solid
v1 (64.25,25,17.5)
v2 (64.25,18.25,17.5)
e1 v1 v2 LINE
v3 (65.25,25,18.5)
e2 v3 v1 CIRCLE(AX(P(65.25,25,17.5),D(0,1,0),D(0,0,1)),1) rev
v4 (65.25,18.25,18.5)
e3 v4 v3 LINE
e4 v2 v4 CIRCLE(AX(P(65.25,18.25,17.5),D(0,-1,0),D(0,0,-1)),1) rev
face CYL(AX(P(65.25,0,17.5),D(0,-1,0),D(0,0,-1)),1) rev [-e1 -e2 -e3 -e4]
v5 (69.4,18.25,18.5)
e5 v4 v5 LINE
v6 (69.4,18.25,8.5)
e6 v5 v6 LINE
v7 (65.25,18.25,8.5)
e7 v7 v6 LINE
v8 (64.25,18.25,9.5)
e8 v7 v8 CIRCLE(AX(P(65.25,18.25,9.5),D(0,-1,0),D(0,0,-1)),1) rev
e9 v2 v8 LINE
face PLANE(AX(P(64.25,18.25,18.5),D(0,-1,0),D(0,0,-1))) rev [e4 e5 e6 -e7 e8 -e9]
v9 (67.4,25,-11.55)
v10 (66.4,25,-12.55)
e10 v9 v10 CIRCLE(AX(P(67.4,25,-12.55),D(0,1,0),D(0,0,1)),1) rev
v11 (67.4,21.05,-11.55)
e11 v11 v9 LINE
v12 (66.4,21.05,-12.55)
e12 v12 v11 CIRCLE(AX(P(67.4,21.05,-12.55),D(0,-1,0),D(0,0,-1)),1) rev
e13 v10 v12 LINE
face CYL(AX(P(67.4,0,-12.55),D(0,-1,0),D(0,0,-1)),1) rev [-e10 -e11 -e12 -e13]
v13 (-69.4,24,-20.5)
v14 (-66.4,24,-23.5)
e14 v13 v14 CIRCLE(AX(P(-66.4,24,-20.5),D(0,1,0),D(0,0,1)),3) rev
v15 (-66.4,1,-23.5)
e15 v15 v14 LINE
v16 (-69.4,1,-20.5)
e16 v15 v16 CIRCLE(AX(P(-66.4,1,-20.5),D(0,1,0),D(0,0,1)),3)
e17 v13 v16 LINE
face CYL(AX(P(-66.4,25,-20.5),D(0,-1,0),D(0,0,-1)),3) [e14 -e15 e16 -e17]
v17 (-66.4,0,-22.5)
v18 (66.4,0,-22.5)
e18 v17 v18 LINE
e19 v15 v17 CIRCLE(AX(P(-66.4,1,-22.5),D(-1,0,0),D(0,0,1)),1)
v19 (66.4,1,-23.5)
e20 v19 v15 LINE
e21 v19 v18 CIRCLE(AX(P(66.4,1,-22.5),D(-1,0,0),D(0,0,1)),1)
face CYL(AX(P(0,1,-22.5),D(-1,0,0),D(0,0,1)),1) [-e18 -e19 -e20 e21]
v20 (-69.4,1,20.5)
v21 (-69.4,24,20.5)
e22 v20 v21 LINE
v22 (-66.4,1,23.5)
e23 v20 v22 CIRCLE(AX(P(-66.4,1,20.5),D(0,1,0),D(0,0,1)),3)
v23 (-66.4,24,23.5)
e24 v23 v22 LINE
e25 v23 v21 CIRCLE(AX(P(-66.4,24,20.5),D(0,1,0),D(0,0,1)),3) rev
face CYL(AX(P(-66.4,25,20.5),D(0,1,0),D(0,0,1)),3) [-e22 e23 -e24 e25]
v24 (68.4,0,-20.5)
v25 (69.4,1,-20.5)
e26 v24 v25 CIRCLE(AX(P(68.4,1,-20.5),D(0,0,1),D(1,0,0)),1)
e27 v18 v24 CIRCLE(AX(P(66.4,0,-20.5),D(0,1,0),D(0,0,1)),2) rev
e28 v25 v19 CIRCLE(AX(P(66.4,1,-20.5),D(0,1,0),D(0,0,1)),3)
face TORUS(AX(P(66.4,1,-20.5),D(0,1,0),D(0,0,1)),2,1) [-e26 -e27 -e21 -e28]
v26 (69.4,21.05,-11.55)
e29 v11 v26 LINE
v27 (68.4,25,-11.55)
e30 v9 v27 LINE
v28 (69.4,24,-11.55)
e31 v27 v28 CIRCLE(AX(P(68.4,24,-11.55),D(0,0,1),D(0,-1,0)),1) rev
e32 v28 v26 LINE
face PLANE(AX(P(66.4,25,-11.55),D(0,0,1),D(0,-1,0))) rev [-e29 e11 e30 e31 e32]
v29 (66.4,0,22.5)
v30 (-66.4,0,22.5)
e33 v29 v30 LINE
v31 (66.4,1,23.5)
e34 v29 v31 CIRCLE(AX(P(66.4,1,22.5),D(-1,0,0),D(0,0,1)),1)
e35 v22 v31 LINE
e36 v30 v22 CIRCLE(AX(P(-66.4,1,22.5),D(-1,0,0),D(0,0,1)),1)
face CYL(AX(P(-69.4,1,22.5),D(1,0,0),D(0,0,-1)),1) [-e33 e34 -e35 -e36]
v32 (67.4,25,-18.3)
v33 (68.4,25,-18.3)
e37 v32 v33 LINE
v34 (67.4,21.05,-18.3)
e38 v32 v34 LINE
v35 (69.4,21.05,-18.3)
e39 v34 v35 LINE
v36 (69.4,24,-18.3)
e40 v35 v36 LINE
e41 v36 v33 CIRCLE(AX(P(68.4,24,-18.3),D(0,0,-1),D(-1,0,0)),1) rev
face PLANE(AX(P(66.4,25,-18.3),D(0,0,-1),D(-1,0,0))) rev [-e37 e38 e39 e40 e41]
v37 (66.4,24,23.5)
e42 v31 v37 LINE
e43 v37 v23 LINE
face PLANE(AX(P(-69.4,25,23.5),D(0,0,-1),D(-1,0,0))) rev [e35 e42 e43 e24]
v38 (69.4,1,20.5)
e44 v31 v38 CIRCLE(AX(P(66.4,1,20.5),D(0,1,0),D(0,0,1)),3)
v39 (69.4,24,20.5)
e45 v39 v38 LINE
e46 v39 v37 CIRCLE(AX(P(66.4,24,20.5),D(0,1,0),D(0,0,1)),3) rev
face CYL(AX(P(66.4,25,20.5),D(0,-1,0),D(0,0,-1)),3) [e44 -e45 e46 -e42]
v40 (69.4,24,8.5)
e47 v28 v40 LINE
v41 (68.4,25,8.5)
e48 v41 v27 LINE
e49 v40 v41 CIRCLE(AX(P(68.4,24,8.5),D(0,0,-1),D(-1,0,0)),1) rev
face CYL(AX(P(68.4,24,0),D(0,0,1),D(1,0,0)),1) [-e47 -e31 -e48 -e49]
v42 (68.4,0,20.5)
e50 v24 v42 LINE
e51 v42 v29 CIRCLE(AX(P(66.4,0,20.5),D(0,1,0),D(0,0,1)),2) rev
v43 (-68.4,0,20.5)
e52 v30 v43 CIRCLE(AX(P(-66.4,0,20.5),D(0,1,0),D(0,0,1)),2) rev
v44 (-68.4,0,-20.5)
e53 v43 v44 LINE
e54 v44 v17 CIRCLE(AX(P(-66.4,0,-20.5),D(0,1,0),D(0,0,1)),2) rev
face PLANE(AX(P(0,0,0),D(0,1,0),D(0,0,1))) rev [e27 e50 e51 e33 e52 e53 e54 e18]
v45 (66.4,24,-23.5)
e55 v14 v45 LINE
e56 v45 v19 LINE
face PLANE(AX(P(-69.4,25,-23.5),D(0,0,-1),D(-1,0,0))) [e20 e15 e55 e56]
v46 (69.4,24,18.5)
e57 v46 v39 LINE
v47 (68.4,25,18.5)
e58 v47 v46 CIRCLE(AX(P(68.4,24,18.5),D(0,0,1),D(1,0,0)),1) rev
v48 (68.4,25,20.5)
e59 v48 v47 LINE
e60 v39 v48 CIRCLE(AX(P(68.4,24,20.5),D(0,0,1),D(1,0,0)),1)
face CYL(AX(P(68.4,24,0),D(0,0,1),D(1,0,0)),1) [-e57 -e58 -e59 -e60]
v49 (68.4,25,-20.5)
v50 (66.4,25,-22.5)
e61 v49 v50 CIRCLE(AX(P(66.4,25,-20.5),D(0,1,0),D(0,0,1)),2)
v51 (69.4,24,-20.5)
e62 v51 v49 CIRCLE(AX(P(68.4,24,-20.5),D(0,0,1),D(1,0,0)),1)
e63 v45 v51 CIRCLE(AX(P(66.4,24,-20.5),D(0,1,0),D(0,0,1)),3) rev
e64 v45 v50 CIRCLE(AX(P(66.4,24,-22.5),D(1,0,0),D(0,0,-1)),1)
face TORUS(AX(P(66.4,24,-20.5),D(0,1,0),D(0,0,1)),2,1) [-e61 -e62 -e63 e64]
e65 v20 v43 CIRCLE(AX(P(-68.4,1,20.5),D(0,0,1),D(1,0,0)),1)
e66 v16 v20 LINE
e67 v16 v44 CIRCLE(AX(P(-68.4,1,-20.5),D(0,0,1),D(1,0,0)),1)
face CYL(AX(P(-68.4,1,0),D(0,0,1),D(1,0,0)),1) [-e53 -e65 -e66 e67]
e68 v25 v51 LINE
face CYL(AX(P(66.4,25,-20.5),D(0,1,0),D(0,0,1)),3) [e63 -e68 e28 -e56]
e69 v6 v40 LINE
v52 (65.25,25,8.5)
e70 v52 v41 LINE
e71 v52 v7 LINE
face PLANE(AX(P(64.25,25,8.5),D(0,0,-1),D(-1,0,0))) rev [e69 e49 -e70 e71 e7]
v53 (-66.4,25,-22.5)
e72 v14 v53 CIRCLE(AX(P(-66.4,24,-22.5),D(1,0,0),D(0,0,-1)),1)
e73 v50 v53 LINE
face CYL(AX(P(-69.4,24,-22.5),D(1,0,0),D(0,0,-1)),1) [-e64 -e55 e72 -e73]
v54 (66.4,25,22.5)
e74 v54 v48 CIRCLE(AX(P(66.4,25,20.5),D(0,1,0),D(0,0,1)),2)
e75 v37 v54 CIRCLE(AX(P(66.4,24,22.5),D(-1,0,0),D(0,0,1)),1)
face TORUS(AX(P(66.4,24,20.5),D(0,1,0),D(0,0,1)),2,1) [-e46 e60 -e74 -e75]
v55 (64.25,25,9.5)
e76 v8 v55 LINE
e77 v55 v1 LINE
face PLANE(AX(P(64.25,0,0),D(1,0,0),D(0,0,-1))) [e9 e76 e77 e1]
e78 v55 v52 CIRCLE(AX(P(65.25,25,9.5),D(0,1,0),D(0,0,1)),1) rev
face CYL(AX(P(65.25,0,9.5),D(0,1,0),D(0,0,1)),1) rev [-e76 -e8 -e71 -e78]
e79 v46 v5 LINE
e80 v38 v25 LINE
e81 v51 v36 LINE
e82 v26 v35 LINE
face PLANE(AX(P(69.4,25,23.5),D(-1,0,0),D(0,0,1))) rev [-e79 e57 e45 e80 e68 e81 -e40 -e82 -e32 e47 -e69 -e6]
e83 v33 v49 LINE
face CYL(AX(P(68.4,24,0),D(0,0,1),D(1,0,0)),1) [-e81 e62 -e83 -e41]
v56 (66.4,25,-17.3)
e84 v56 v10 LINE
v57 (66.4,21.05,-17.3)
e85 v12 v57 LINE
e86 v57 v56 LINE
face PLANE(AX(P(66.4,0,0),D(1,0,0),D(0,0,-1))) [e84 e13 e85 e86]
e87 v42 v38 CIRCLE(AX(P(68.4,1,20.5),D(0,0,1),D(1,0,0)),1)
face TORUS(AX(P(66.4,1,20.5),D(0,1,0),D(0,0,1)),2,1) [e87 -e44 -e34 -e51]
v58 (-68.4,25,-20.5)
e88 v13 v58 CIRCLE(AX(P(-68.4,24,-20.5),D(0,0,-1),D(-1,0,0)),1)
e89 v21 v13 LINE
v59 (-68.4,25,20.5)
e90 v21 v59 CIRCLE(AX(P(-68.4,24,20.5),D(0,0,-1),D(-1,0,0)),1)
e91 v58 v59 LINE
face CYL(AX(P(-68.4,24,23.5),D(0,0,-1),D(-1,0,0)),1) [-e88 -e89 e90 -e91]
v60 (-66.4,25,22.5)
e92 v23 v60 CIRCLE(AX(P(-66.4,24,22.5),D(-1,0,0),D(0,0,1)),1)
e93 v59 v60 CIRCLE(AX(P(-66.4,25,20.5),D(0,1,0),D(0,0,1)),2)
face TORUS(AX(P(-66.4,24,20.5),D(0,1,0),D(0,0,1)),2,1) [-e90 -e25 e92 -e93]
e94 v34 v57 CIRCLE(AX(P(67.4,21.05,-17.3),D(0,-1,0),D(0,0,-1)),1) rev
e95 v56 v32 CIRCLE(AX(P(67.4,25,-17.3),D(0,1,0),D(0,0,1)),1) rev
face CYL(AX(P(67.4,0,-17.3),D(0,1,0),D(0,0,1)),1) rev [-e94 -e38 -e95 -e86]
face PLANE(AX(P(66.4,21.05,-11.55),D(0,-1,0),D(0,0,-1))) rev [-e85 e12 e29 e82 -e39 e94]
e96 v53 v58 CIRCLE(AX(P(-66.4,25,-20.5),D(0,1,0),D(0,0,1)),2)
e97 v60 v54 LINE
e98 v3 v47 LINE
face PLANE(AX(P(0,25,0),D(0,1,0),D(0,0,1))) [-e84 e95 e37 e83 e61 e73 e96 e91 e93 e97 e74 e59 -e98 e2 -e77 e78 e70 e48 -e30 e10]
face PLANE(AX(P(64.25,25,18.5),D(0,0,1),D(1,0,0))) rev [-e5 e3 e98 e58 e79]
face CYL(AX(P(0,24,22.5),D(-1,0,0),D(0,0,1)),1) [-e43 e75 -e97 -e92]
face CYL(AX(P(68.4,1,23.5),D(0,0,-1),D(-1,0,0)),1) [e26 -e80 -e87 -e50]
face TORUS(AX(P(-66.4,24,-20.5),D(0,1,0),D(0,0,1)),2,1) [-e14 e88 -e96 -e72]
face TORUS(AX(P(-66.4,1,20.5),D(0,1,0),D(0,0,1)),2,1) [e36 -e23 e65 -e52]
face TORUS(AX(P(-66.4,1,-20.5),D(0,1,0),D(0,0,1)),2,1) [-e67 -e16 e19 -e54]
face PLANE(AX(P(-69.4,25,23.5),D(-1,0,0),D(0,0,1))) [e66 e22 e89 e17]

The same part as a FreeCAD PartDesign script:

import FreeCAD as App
import Part
import Sketcher
Q = App.Units.Quantity


def edges_at(feature, points):
    """Names of the edges that pass closest to the given points."""
    edges = feature.Shape.Edges
    near = lambda p: min(range(len(edges)), key=lambda i: edges[i].distToShape(Part.Vertex(*p))[0])
    return sorted({f"Edge{near(p) + 1}" for p in points})


def add_polygon(sketch, points):
    """Adds a closed chain of lines whose ends are joined by coincident constraints."""
    first, n = sketch.GeometryCount, len(points)
    for a, b in zip(points, points[1:] + points[:1]):
        sketch.addGeometry(Part.LineSegment(App.Vector(*a, 0), App.Vector(*b, 0)), False)
    for i in range(n):
        sketch.addConstraint(Sketcher.Constraint("Coincident", first + i, 2, first + (i + 1) % n, 1))

doc = App.newDocument("Part")
body = doc.addObject("PartDesign::Body", "Body")

# Sketch on XZ plane
sketch1 = body.newObject("Sketcher::SketchObject", "Sketch")
sketch1.AttachmentSupport = (doc.getObject("XZ_Plane"), [""])
sketch1.MapMode = "FlatFace"
add_polygon(sketch1, [(-69, -24), (-69, 24), (69, 24), (69, -24)])  # lines 0-3
sketch1.addConstraint(Sketcher.Constraint("Vertical", 0))
sketch1.addConstraint(Sketcher.Constraint("Horizontal", 1))
sketch1.addConstraint(Sketcher.Constraint("Vertical", 2))
sketch1.addConstraint(Sketcher.Constraint("Horizontal", 3))
sketch1.addConstraint(Sketcher.Constraint("Symmetric", 0, 2, 2, 2, -1, 1))
sketch1.addConstraint(Sketcher.Constraint("DistanceY", 0, 1, 0, 2, Q("47 mm")))
sketch1.addConstraint(Sketcher.Constraint("DistanceX", 1, 1, 1, 2, Q("138.8 mm")))
pad1 = body.newObject("PartDesign::Pad", "Pad")
pad1.Profile = sketch1
pad1.Length = 25
pad1.Reversed = True

# Sketch on YZ plane
sketch2 = body.newObject("Sketcher::SketchObject", "Sketch001")
sketch2.AttachmentSupport = (doc.getObject("YZ_Plane"), [""])
sketch2.MapMode = "FlatFace"
sketch2.AttachmentOffset = App.Placement(App.Vector(0, 0, 69.4), App.Rotation())
add_polygon(sketch2, [(25, 18), (18, 18), (18, 8), (25, 8)])  # lines 0-3
sketch2.addConstraint(Sketcher.Constraint("Horizontal", 0))
sketch2.addConstraint(Sketcher.Constraint("Vertical", 1))
sketch2.addConstraint(Sketcher.Constraint("Horizontal", 2))
sketch2.addConstraint(Sketcher.Constraint("Vertical", 3))
sketch2.addConstraint(Sketcher.Constraint("DistanceY", 1, 2, 1, 1, Q("10 mm")))
sketch2.addConstraint(Sketcher.Constraint("DistanceX", -1, 1, 2, 2, Q("25 mm")))
sketch2.addConstraint(Sketcher.Constraint("DistanceX", 0, 2, 0, 1, Q("6.75 mm")))
sketch2.addConstraint(Sketcher.Constraint("DistanceY", -1, 1, 0, 2, Q("18.5 mm")))
pocket1 = body.newObject("PartDesign::Pocket", "Pocket")
pocket1.Profile = sketch2
pocket1.Length = 5.15

# Sketch on YZ plane
sketch3 = body.newObject("Sketcher::SketchObject", "Sketch002")
sketch3.AttachmentSupport = (doc.getObject("YZ_Plane"), [""])
sketch3.MapMode = "FlatFace"
sketch3.AttachmentOffset = App.Placement(App.Vector(0, 0, 69.4), App.Rotation())
add_polygon(sketch3, [(25, -11.6), (21.1, -11.6), (21.1, -18.3), (25, -18.3)])  # lines 0-3
sketch3.addConstraint(Sketcher.Constraint("Horizontal", 0))
sketch3.addConstraint(Sketcher.Constraint("Vertical", 1))
sketch3.addConstraint(Sketcher.Constraint("Horizontal", 2))
sketch3.addConstraint(Sketcher.Constraint("Vertical", 3))
sketch3.addConstraint(Sketcher.Constraint("DistanceX", -1, 1, 2, 2, Q("25 mm")))
sketch3.addConstraint(Sketcher.Constraint("DistanceX", 0, 2, 0, 1, Q("3.95 mm")))
sketch3.addConstraint(Sketcher.Constraint("DistanceY", 1, 2, 1, 1, Q("6.75 mm")))
sketch3.addConstraint(Sketcher.Constraint("DistanceY", 1, 2, -1, 1, Q("18.3 mm")))
pocket2 = body.newObject("PartDesign::Pocket", "Pocket001")
pocket2.Profile = sketch3
pocket2.Length = 3
doc.recompute()

fillet = body.newObject("PartDesign::Fillet", "Fillet")
fillet.Base = (pocket2, edges_at(pocket2, [
    (-69.4, 12.5, 23.5),
    (-69.4, 12.5, -23.5),
    (69.4, 12.5, -23.5),
    (69.4, 12.5, 23.5),
]))
fillet.Radius = 3
doc.recompute()

fillet2 = body.newObject("PartDesign::Fillet", "Fillet001")
fillet2.Base = (fillet, edges_at(fillet, [
    (69.4, 25, -1.525),
    (69.4, 25, -19.4),
    (-69.4, 0, 0),
    (-69.4, 25, 0),
    (0, 0, 23.5),
    (0, 0, -23.5),
    (69.4, 0, 0),
    (-68.521, 0, 22.621),
    (68.521, 0, 22.621),
    (68.521, 0, -22.621),
    (-68.521, 0, -22.621),
    (0, 25, -23.5),
    (0, 25, 23.5),
    (69.4, 25, 19.5),
    (-68.521, 25, 22.621),
    (68.521, 25, 22.621),
    (68.521, 25, -22.621),
    (-68.521, 25, -22.621),
]))
fillet2.Radius = 1
doc.recompute()

fillet3 = body.newObject("PartDesign::Fillet", "Fillet002")
fillet3.Base = (fillet2, edges_at(fillet2, [
    (64.25, 21.625, 18.5),
    (64.25, 21.625, 8.5),
    (66.4, 23.025, -11.55),
    (66.4, 23.025, -18.3),
]))
fillet3.Radius = 1

doc.recompute()
